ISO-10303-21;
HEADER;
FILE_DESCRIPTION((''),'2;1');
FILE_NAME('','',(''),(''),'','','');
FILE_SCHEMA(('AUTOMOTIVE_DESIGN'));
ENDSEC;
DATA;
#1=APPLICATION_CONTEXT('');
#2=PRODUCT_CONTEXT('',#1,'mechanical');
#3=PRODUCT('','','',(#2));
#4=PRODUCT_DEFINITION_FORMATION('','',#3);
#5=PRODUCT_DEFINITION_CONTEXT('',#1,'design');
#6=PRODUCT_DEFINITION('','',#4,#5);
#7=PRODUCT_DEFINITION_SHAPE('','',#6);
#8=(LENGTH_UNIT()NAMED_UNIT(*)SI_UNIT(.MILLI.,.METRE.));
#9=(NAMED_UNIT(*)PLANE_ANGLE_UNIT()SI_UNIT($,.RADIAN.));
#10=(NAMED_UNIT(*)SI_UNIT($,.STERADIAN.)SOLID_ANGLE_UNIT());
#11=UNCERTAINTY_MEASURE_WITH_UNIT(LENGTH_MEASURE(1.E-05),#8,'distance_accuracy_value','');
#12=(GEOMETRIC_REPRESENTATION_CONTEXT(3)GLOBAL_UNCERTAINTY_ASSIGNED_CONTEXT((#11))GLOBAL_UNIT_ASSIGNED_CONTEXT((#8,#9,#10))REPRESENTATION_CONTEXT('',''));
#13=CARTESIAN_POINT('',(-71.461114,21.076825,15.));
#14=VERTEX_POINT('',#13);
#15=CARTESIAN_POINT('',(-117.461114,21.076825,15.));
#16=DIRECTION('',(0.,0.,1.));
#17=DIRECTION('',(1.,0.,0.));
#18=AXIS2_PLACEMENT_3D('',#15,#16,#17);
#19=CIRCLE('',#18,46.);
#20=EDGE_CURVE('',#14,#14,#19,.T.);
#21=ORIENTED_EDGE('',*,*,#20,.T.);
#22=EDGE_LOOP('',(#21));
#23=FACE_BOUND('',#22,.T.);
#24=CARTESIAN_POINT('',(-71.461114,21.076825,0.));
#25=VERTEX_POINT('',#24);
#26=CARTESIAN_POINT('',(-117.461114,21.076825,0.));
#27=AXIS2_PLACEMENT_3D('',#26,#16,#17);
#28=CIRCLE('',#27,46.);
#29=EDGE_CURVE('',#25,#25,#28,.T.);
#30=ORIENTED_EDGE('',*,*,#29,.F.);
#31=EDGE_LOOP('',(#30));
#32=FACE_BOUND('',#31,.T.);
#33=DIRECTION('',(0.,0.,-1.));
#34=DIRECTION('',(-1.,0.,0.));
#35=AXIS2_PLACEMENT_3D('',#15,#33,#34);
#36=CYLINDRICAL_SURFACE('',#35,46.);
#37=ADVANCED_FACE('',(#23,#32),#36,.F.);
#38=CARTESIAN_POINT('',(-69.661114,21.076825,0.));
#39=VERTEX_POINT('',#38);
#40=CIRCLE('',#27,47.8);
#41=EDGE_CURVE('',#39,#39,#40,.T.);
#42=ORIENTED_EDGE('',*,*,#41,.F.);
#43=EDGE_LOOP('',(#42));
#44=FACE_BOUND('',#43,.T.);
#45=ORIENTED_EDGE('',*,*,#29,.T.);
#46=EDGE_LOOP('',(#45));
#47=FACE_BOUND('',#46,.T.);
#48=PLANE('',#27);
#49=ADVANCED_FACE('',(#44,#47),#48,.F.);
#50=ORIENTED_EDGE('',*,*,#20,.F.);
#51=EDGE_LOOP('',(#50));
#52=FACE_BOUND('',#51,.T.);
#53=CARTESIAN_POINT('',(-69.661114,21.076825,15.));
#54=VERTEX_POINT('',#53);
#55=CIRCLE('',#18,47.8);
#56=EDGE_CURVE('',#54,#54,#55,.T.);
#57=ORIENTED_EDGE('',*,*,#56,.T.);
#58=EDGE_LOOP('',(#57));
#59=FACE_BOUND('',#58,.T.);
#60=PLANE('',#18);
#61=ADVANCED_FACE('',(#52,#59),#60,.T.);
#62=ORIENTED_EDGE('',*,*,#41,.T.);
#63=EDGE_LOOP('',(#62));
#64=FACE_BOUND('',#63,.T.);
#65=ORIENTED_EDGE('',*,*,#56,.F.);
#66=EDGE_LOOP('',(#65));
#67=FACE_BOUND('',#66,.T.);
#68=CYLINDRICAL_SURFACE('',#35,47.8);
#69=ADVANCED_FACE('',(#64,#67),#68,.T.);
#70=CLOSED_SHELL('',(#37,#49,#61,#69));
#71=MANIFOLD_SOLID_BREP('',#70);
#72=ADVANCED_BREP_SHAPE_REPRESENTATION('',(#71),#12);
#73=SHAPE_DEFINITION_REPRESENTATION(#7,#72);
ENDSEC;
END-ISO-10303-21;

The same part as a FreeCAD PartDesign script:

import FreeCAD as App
import Part
import Sketcher

doc = App.newDocument("Part")
params = doc.addObject("Spreadsheet::Sheet", "Params")
for row, (alias, value) in enumerate([
    ("sketch1_diameter", "92 mm"),
    ("sketch1_diameter2", "95.6 mm"),
    ("pad1_length", "15 mm"),
], start=1):
    params.set(f"A{row}", alias)
    params.set(f"B{row}", "=" + value)
    params.setAlias(f"B{row}", alias)

body = doc.addObject("PartDesign::Body", "Body")

sketch1 = doc.addObject("Sketcher::SketchObject", "Sketch")
body.addObject(sketch1)
sketch1.AttachmentSupport = (doc.XY_Plane, [""])
sketch1.MapMode = "FlatFace"
sketch1.addGeometry(Part.Circle(App.Vector(-117.461114, 21.076825, 0), App.Vector(0, 0, 1), 47.8), False)
sketch1.addGeometry(Part.Circle(App.Vector(-117.461114, 21.076825, 0), App.Vector(0, 0, 1), 46), False)
sketch1.addConstraint(Sketcher.Constraint("Coincident", 1, 3, 0, 3))
sketch1.addConstraint(Sketcher.Constraint("Diameter", 1, 92.0))
sketch1.addConstraint(Sketcher.Constraint("Diameter", 0, 95.6))
sketch1.addConstraint(Sketcher.Constraint("DistanceX", 0, 3, -1, 1, 117.461114))
sketch1.addConstraint(Sketcher.Constraint("DistanceY", -1, 1, 0, 3, 21.076825))
sketch1.setExpression("Constraints[1]", "Params.sketch1_diameter")
sketch1.setExpression("Constraints[2]", "Params.sketch1_diameter2")
pad1 = doc.addObject("PartDesign::Pad", "Pad")
body.addObject(pad1)
pad1.Profile = sketch1
pad1.setExpression("Length", "Params.pad1_length")

doc.recompute()
